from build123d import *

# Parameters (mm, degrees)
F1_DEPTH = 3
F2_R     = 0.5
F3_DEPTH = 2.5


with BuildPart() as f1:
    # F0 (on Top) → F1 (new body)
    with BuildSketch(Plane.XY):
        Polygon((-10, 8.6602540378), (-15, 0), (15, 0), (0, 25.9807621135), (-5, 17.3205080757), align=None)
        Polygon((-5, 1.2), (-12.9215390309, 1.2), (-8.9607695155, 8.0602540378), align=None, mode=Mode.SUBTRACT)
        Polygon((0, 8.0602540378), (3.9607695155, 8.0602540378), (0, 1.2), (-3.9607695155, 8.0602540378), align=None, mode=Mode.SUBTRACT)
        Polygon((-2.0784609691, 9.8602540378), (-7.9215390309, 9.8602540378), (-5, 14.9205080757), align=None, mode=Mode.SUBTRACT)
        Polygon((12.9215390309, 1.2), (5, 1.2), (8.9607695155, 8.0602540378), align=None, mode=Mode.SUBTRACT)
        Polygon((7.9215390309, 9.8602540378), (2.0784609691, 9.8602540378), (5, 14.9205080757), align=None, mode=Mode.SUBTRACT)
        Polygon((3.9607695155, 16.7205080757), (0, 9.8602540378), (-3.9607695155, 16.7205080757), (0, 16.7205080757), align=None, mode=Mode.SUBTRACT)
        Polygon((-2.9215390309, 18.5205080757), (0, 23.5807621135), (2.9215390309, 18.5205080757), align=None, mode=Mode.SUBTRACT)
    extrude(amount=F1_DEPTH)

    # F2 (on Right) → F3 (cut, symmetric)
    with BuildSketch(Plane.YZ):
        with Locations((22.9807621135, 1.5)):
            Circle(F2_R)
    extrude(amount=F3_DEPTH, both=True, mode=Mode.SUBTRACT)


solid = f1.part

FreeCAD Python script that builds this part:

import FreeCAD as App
import Part
import Sketcher
from FreeCAD import Vector
Q = App.Units.Quantity

doc = App.newDocument("Part")
body = doc.addObject("PartDesign::Body", "Body")

# Sketch on XY plane
sketch1 = doc.addObject("Sketcher::SketchObject", "Sketch")
body.addObject(sketch1)
sketch1.AttachmentSupport = (doc.XY_Plane, [""])
sketch1.MapMode = "FlatFace"
sketch1.addGeometry([
    Part.LineSegment(Vector(-10, 9, 0), Vector(-15, 0, 0)),  # 0
    Part.LineSegment(Vector(-15, 0, 0), Vector(15, 0, 0)),  # 1
    Part.LineSegment(Vector(15, 0, 0), Vector(0, 26, 0)),  # 2
    Part.LineSegment(Vector(0, 26, 0), Vector(-5, 17, 0)),  # 3
    Part.LineSegment(Vector(-5, 17, 0), Vector(-10, 9, 0)),  # 4
    Part.LineSegment(Vector(-9, 8, 0), Vector(-5, 1, 0)),  # 5
    Part.LineSegment(Vector(-5, 1, 0), Vector(-13, 1, 0)),  # 6
    Part.LineSegment(Vector(-13, 1, 0), Vector(-9, 8, 0)),  # 7
    Part.LineSegment(Vector(-5, 15, 0), Vector(-2, 10, 0)),  # 8
    Part.LineSegment(Vector(-2, 10, 0), Vector(-8, 10, 0)),  # 9
    Part.LineSegment(Vector(-8, 10, 0), Vector(-5, 15, 0)),  # 10
    Part.LineSegment(Vector(-4, 8, 0), Vector(4, 8, 0)),  # 11
    Part.LineSegment(Vector(4, 8, 0), Vector(0, 1, 0)),  # 12
    Part.LineSegment(Vector(0, 1, 0), Vector(-4, 8, 0)),  # 13
    Part.LineSegment(Vector(9, 8, 0), Vector(13, 1, 0)),  # 14
    Part.LineSegment(Vector(13, 1, 0), Vector(5, 1, 0)),  # 15
    Part.LineSegment(Vector(5, 1, 0), Vector(9, 8, 0)),  # 16
    Part.LineSegment(Vector(5, 15, 0), Vector(8, 10, 0)),  # 17
    Part.LineSegment(Vector(8, 10, 0), Vector(2, 10, 0)),  # 18
    Part.LineSegment(Vector(2, 10, 0), Vector(5, 15, 0)),  # 19
    Part.LineSegment(Vector(-4, 17, 0), Vector(4, 17, 0)),  # 20
    Part.LineSegment(Vector(4, 17, 0), Vector(0, 10, 0)),  # 21
    Part.LineSegment(Vector(0, 10, 0), Vector(-4, 17, 0)),  # 22
    Part.LineSegment(Vector(3, 19, 0), Vector(-3, 19, 0)),  # 23
    Part.LineSegment(Vector(-3, 19, 0), Vector(0, 24, 0)),  # 24
    Part.LineSegment(Vector(0, 24, 0), Vector(3, 19, 0)),  # 25
], False)
sketch1.addConstraint([
    Sketcher.Constraint("Coincident", 0, 2, 1, 1),
    Sketcher.Constraint("Coincident", 1, 2, 2, 1),
    Sketcher.Constraint("Coincident", 2, 2, 3, 1),
    Sketcher.Constraint("Coincident", 3, 2, 4, 1),
    Sketcher.Constraint("Coincident", 4, 2, 0, 1),
    Sketcher.Constraint("Coincident", 5, 2, 6, 1),
    Sketcher.Constraint("Coincident", 6, 2, 7, 1),
    Sketcher.Constraint("Coincident", 7, 2, 5, 1),
    Sketcher.Constraint("Coincident", 8, 2, 9, 1),
    Sketcher.Constraint("Coincident", 9, 2, 10, 1),
    Sketcher.Constraint("Coincident", 10, 2, 8, 1),
    Sketcher.Constraint("Coincident", 11, 2, 12, 1),
    Sketcher.Constraint("Coincident", 12, 2, 13, 1),
    Sketcher.Constraint("Coincident", 13, 2, 11, 1),
    Sketcher.Constraint("Coincident", 14, 2, 15, 1),
    Sketcher.Constraint("Coincident", 15, 2, 16, 1),
    Sketcher.Constraint("Coincident", 16, 2, 14, 1),
    Sketcher.Constraint("Coincident", 17, 2, 18, 1),
    Sketcher.Constraint("Coincident", 18, 2, 19, 1),
    Sketcher.Constraint("Coincident", 19, 2, 17, 1),
    Sketcher.Constraint("Coincident", 20, 2, 21, 1),
    Sketcher.Constraint("Coincident", 21, 2, 22, 1),
    Sketcher.Constraint("Coincident", 22, 2, 20, 1),
    Sketcher.Constraint("Coincident", 23, 2, 24, 1),
    Sketcher.Constraint("Coincident", 24, 2, 25, 1),
    Sketcher.Constraint("Coincident", 25, 2, 23, 1),
    Sketcher.Constraint("Horizontal", 1),
    Sketcher.Constraint("Horizontal", 6),
    Sketcher.Constraint("Horizontal", 9),
    Sketcher.Constraint("Horizontal", 11),
    Sketcher.Constraint("Horizontal", 15),
    Sketcher.Constraint("Horizontal", 18),
    Sketcher.Constraint("Horizontal", 20),
    Sketcher.Constraint("Horizontal", 23),
    Sketcher.Constraint("Symmetric", 0, 2, 1, 2, -1, 1),
    Sketcher.Constraint("Symmetric", 6, 2, 14, 2, -2),
    Sketcher.Constraint("Symmetric", 7, 2, 16, 2, -2),
    Sketcher.Constraint("Symmetric", 9, 2, 17, 2, -2),
    Sketcher.Constraint("Symmetric", 10, 2, 19, 2, -2),
    Sketcher.Constraint("PointOnObject", 2, 2, -2),
    Sketcher.Constraint("PointOnObject", 12, 2, -2),
    Sketcher.Constraint("PointOnObject", 21, 2, -2),
    Sketcher.Constraint("PointOnObject", 24, 2, -2),
    Sketcher.Constraint("Parallel", 0, 3),
    Sketcher.Constraint("Parallel", 3, 4),
    Sketcher.Constraint("Parallel", 2, 5),
    Sketcher.Constraint("Parallel", 4, 7),
    Sketcher.Constraint("Parallel", 5, 8),
    Sketcher.Constraint("Parallel", 7, 10),
    Sketcher.Constraint("Parallel", 10, 12),
    Sketcher.Constraint("Parallel", 8, 13),
    Sketcher.Constraint("Parallel", 12, 16),
    Sketcher.Constraint("Parallel", 16, 19),
    Sketcher.Constraint("Parallel", 19, 21),
    Sketcher.Constraint("Parallel", 17, 22),
    Sketcher.Constraint("Parallel", 21, 24),
    Sketcher.Constraint("Parallel", 22, 25),
    Sketcher.Constraint("Horizontal", 7, 2, 11, 2),
    Sketcher.Constraint("Horizontal", 6, 2, 12, 2),
    Sketcher.Constraint("Horizontal", 18, 2, 21, 2),
    Sketcher.Constraint("Vertical", 3, 2, 5, 2),
    Sketcher.Constraint("Vertical", 5, 2, 10, 2),
    Sketcher.Constraint("Vertical", 11, 2, 20, 2),
    Sketcher.Constraint("Equal", 18, 23),
    Sketcher.Constraint("Equal", 0, 3),
    Sketcher.Constraint("Equal", 3, 4),
    Sketcher.Constraint("DistanceX", 1, 1, 1, 2, 30.0),
    Sketcher.Constraint("Angle", 0, Q("-120 deg")),
    Sketcher.Constraint("DistanceX", 8, 2, 14, 2, 15.0),
    Sketcher.Constraint("DistanceY", -1, 1, 5, 2, 1.2),
    Sketcher.Constraint("DistanceY", 7, 2, 4, 2, 0.6),
    Sketcher.Constraint("DistanceY", 7, 2, 8, 2, 1.8),
    Sketcher.Constraint("DistanceY", 22, 2, 23, 2, 1.8),
])
pad1 = doc.addObject("PartDesign::Pad", "Pad")
body.addObject(pad1)
pad1.Profile = sketch1
pad1.Length = 3

# Sketch on YZ plane
sketch2 = doc.addObject("Sketcher::SketchObject", "Sketch001")
body.addObject(sketch2)
sketch2.AttachmentSupport = (doc.YZ_Plane, [""])
sketch2.MapMode = "FlatFace"
sketch2.addGeometry(Part.Circle(Vector(23, 1.5, 0), Vector(0, 0, 1), 0.5), False)
sketch2.addConstraint([
    Sketcher.Constraint("Diameter", 0, 1.0),
    Sketcher.Constraint("DistanceY", -1, 1, 0, 3, 1.5),
    Sketcher.Constraint("DistanceX", -1, 1, 0, 3, 22.980762),
])
pocket1 = doc.addObject("PartDesign::Pocket", "Pocket")
body.addObject(pocket1)
pocket1.Profile = sketch2
pocket1.Length = 5
pocket1.Midplane = True

doc.recompute()
